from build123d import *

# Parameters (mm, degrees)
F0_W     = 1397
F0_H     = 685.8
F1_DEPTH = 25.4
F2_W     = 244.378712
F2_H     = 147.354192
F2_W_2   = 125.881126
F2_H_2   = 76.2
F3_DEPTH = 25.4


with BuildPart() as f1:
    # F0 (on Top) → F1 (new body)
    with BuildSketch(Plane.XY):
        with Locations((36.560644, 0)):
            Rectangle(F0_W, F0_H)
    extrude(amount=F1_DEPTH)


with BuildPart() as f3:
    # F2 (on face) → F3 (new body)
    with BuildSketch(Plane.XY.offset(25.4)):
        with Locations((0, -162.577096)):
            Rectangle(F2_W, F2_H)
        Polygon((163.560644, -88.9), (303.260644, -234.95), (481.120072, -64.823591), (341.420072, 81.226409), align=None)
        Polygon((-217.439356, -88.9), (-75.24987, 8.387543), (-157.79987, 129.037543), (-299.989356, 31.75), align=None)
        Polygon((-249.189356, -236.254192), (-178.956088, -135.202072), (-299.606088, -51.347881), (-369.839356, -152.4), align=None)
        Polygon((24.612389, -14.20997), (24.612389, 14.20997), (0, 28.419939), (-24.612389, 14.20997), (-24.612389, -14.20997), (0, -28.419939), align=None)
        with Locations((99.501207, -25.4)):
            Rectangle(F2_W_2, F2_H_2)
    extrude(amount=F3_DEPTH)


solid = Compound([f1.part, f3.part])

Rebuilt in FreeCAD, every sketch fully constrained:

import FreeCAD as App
import Part
import Sketcher
Q = App.Units.Quantity


def add_polygon(sketch, points):
    """Adds a closed chain of lines whose ends are joined by coincident constraints."""
    first, n = sketch.GeometryCount, len(points)
    for a, b in zip(points, points[1:] + points[:1]):
        sketch.addGeometry(Part.LineSegment(App.Vector(*a, 0), App.Vector(*b, 0)), False)
    for i in range(n):
        sketch.addConstraint(Sketcher.Constraint("Coincident", first + i, 2, first + (i + 1) % n, 1))

doc = App.newDocument("Part")
params = doc.addObject("Spreadsheet::Sheet", "Params")
for row, (alias, value) in enumerate([
    ("sketch1_width", "55 in"),
    ("sketch1_height", "27 in"),
    ("pad1_length", "1 in"),
    ("sketch2_height", "3 in"),
    ("pad2_length", "1 in"),
], start=1):
    params.set(f"A{row}", alias)
    params.set(f"B{row}", "=" + value)
    params.setAlias(f"B{row}", alias)

body = doc.addObject("PartDesign::Body", "Body")

sketch1 = doc.addObject("Sketcher::SketchObject", "Sketch")
body.addObject(sketch1)
sketch1.AttachmentSupport = (doc.XY_Plane, [""])
sketch1.MapMode = "FlatFace"
add_polygon(sketch1, [(-662, 343), (-662, -343), (735, -343), (735, 343)])
sketch1.addConstraint([
    Sketcher.Constraint("Vertical", 0),
    Sketcher.Constraint("Horizontal", 1),
    Sketcher.Constraint("Vertical", 2),
    Sketcher.Constraint("Horizontal", 3),
    Sketcher.Constraint("DistanceX", 1, 1, 1, 2, Q("55 in")),
    Sketcher.Constraint("DistanceY", 0, 2, 0, 1, Q("27 in")),
    Sketcher.Constraint("DistanceY", 0, 2, -1, 1, Q("13.5 in")),
    Sketcher.Constraint("DistanceX", 0, 2, -1, 1, 661.939356),
])
sketch1.setExpression("Constraints[8]", "Params.sketch1_width")
sketch1.setExpression("Constraints[9]", "Params.sketch1_height")
pad1 = doc.addObject("PartDesign::Pad", "Pad")
body.addObject(pad1)
pad1.Profile = sketch1
pad1.setExpression("Length", "Params.pad1_length")
body2 = doc.addObject("PartDesign::Body", "Body001")
body2.AllowCompound = True

sketch2 = doc.addObject("Sketcher::SketchObject", "Sketch001")
body2.addObject(sketch2)
sketch2.AttachmentSupport = (doc.getObject("XY_Plane001"), [""])
sketch2.MapMode = "FlatFace"
sketch2.AttachmentOffset = App.Placement(App.Vector(0, 0, 1 * 25.4), App.Rotation())
add_polygon(sketch2, [(-122, -89), (-122, -236), (122, -236), (122, -89)])
add_polygon(sketch2, [(164, -89), (303, -235), (481, -65), (341, 81)])
add_polygon(sketch2, [(-217, -89), (-75, 8), (-158, 129), (-300, 32)])
add_polygon(sketch2, [(-249, -236), (-179, -135), (-300, -51), (-370, -152)])
add_polygon(sketch2, [(25, -14), (25, 14), (0, 28), (-25, 14), (-25, -14), (0, -28)])
add_polygon(sketch2, [(37, 13), (37, -64), (162, -64), (162, 13)])
sketch2.addConstraint([
    Sketcher.Constraint("Vertical", 0),
    Sketcher.Constraint("Horizontal", 1),
    Sketcher.Constraint("Vertical", 2),
    Sketcher.Constraint("Horizontal", 3),
    Sketcher.Constraint("Vertical", 16),
    Sketcher.Constraint("Vertical", 19),
    Sketcher.Constraint("Vertical", 22),
    Sketcher.Constraint("Horizontal", 23),
    Sketcher.Constraint("Vertical", 24),
    Sketcher.Constraint("Horizontal", 25),
    Sketcher.Constraint("Symmetric", 16, 2, 19, 2, -1, 1),
    Sketcher.Constraint("Symmetric", 17, 2, 20, 2, -1, 1),
    Sketcher.Constraint("PointOnObject", 17, 2, -2),
    Sketcher.Constraint("Perpendicular", 4, 5),
    Sketcher.Constraint("Perpendicular", 5, 6),
    Sketcher.Constraint("Perpendicular", 6, 7),
    Sketcher.Constraint("Perpendicular", 8, 9),
    Sketcher.Constraint("Perpendicular", 9, 10),
    Sketcher.Constraint("Perpendicular", 10, 11),
    Sketcher.Constraint("Perpendicular", 12, 13),
    Sketcher.Constraint("Perpendicular", 13, 14),
    Sketcher.Constraint("Perpendicular", 14, 15),
    Sketcher.Constraint("Parallel", 18, 21),
    Sketcher.Constraint("Horizontal", 3, 2, 7, 2),
    Sketcher.Constraint("Horizontal", 7, 2, 11, 2),
    Sketcher.Constraint("Horizontal", 1, 2, 15, 2),
    Sketcher.Constraint("Horizontal", 16, 2, 18, 2),
    Sketcher.Constraint("DistanceY", 22, 2, 22, 1, Q("3 in")),
    Sketcher.Constraint("DistanceY", 14, 2, -1, 1, Q("6 in")),
    Sketcher.Constraint("Angle", 17, Q("150.000001 deg")),
    Sketcher.Constraint("DistanceX", 10, 2, 3, 2, Q("7 in")),
    Sketcher.Constraint("DistanceX", 14, 2, 11, 2, Q("6 in")),
    Sketcher.Constraint("DistanceX", 15, 2, 0, 2, Q("5 in")),
    Sketcher.Constraint("DistanceY", 2, 2, 22, 2, Q("1 in")),
    Sketcher.Constraint("DistanceY", 2, 2, -1, 1, Q("3.5 in")),
    Sketcher.Constraint("DistanceX", 6, 2, 5, 2, Q("5.5 in")),
    Sketcher.Constraint("DistanceY", 4, 2, -1, 1, Q("9.25 in")),
    Sketcher.Constraint("DistanceY", -1, 1, 10, 2, Q("1.25 in")),
    Sketcher.Constraint("DistanceX", 0, 2, 4, 2, Q("16.75 in")),
    Sketcher.Constraint("DistanceX", 9, 2, 8, 2, Q("3.25 in")),
    Sketcher.Constraint("DistanceX", 1, 1, 1, 2, 244.378712),
    Sketcher.Constraint("DistanceY", 0, 2, 0, 1, 147.354192),
    Sketcher.Constraint("DistanceY", 16, 1, 16, 2, 28.41994),
    Sketcher.Constraint("DistanceY", 1, 2, 5, 2, 171.430601),
    Sketcher.Constraint("Distance", 17, 28.419939),
    Sketcher.Constraint("DistanceX", 23, 1, 23, 2, 125.881126),
    Sketcher.Constraint("DistanceX", -1, 1, 5, 2, 481.120072),
    Sketcher.Constraint("DistanceX", 8, 2, -1, 1, 75.24987),
    Sketcher.Constraint("DistanceX", 12, 2, -1, 1, 178.956088),
    Sketcher.Constraint("DistanceX", -1, 1, 23, 2, 162.44177),
])
sketch2.setExpression("Constraints[53]", "Params.sketch2_height")
pad2 = doc.addObject("PartDesign::Pad", "Pad001")
body2.addObject(pad2)
pad2.Profile = sketch2
pad2.setExpression("Length", "Params.pad2_length")

doc.recompute()
